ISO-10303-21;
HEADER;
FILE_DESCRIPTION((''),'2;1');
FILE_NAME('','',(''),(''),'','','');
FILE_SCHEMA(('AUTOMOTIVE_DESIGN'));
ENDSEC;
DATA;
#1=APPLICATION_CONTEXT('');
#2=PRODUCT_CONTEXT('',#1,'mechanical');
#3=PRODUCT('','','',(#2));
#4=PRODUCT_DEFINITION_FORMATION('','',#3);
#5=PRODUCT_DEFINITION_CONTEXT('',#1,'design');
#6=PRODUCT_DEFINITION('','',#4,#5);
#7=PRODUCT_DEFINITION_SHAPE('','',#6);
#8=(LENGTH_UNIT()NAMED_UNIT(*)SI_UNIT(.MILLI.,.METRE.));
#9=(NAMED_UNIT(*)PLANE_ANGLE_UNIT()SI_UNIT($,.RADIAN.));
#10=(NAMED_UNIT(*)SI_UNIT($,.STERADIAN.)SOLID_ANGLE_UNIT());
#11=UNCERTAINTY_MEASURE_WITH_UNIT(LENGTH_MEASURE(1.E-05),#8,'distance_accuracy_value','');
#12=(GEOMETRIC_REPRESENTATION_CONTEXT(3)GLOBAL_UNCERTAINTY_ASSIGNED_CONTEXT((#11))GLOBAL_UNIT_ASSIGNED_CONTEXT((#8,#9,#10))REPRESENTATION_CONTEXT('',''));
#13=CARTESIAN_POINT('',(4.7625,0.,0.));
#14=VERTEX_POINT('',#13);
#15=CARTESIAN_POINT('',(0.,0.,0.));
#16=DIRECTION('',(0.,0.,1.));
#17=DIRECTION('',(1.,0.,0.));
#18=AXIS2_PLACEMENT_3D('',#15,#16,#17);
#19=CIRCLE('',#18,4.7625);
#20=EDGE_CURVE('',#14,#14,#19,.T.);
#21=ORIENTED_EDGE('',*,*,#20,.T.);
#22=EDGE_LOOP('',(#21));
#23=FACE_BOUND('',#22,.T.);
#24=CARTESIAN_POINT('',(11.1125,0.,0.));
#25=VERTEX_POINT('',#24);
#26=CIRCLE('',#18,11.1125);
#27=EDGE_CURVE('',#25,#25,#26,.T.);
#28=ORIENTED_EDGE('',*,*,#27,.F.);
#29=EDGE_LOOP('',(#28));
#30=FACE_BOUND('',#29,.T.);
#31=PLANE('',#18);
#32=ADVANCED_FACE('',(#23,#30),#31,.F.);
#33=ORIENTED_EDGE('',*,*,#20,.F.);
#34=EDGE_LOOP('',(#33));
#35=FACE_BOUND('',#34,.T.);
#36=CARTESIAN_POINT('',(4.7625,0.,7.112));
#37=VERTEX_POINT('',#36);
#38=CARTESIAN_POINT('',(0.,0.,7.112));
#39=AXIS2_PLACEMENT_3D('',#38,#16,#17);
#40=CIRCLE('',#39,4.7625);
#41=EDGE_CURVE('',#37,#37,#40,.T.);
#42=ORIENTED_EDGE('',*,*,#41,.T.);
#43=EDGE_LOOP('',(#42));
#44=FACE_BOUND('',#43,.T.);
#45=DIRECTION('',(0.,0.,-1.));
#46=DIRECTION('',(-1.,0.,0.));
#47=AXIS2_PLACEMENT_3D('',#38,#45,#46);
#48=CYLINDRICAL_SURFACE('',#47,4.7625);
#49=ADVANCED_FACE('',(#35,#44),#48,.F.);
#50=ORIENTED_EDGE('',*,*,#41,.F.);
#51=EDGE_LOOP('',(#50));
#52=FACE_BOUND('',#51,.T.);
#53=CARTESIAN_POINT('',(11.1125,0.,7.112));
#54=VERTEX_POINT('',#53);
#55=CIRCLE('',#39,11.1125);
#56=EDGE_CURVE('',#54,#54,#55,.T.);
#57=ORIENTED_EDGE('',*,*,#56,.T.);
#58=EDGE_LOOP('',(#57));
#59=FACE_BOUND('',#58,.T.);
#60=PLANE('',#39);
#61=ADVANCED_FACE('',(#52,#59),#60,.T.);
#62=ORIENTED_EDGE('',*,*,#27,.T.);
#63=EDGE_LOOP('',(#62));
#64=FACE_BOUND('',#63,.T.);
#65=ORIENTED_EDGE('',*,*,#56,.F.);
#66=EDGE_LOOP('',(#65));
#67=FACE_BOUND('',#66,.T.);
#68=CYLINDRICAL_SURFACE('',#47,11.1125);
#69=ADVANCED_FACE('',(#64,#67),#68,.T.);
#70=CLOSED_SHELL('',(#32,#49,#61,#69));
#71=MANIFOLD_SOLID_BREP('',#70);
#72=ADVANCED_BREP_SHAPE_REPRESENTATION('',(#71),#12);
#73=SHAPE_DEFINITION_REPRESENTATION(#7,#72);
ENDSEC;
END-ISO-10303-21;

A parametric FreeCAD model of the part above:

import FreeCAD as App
import Part
import Sketcher
Q = App.Units.Quantity

doc = App.newDocument("Part")
body = doc.addObject("PartDesign::Body", "Body")

# Sketch on XY plane
sketch1 = body.newObject("Sketcher::SketchObject", "Sketch")
sketch1.AttachmentSupport = (doc.getObject("XY_Plane"), [""])
sketch1.MapMode = "FlatFace"
sketch1.addGeometry(Part.Circle(App.Vector(0, 0, 0), App.Vector(0, 0, 1), 11.1125), False)
sketch1.addGeometry(Part.Circle(App.Vector(0, 0, 0), App.Vector(0, 0, 1), 4.7625), False)
sketch1.addConstraint(Sketcher.Constraint("Coincident", 0, 3, -1, 1))
sketch1.addConstraint(Sketcher.Constraint("Coincident", 1, 3, -1, 1))
sketch1.addConstraint(Sketcher.Constraint("Diameter", 0, Q("0.875 in")))
sketch1.addConstraint(Sketcher.Constraint("Diameter", 1, Q("0.375 in")))
pad1 = body.newObject("PartDesign::Pad", "Pad")
pad1.Profile = sketch1
pad1.Length = Q("0.28 in")

doc.recompute()
